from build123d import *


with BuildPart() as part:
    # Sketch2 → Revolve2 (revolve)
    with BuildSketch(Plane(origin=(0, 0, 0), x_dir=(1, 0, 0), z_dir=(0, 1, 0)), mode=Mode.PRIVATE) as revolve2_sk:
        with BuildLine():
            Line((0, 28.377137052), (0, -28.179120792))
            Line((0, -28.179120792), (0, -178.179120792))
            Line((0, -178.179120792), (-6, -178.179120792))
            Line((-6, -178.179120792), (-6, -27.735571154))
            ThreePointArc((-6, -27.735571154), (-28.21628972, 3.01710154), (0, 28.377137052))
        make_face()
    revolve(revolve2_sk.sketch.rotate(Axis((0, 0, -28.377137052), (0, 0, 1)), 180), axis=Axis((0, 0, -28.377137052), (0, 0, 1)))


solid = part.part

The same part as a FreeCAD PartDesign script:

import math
import FreeCAD as App
import Part
import Sketcher
Q = App.Units.Quantity

doc = App.newDocument("Part")
params = doc.addObject("Spreadsheet::Sheet", "Params")
for row, (alias, value) in enumerate([
    ("sketch1_width", "6 mm"),
    ("revolution_angle", "360 deg"),
], start=1):
    params.set(f"A{row}", alias)
    params.set(f"B{row}", "=" + value)
    params.setAlias(f"B{row}", alias)

body = doc.addObject("PartDesign::Body", "Body")

# Sketch on XZ plane
sketch1 = doc.addObject("Sketcher::SketchObject", "Sketch")
body.addObject(sketch1)
sketch1.AttachmentSupport = (doc.XZ_Plane, [""])
sketch1.MapMode = "FlatFace"
sketch1.addGeometry(Part.LineSegment(App.Vector(0, 178, 0), App.Vector(0, -28, 0)), False)
sketch1.addGeometry(Part.ArcOfCircle(Part.Circle(App.Vector(0, 0, 0), App.Vector(0, 0, 1), 28), math.radians(102), math.radians(270)), False)
sketch1.addGeometry(Part.LineSegment(App.Vector(-6, 28, 0), App.Vector(-6, 178, 0)), False)
sketch1.addGeometry(Part.LineSegment(App.Vector(-6, 178, 0), App.Vector(0, 178, 0)), False)
sketch1.addConstraint(Sketcher.Constraint("Coincident", 0, 2, 1, 2))
sketch1.addConstraint(Sketcher.Constraint("Coincident", 1, 1, 2, 1))
sketch1.addConstraint(Sketcher.Constraint("Coincident", 2, 2, 3, 1))
sketch1.addConstraint(Sketcher.Constraint("Coincident", 3, 2, 0, 1))
sketch1.addConstraint(Sketcher.Constraint("Vertical", 0))
sketch1.addConstraint(Sketcher.Constraint("Vertical", 2))
sketch1.addConstraint(Sketcher.Constraint("Horizontal", 3))
sketch1.addConstraint(Sketcher.Constraint("Coincident", 1, 3, -1, 1))
sketch1.addConstraint(Sketcher.Constraint("PointOnObject", 0, 2, -2))
sketch1.addConstraint(Sketcher.Constraint("DistanceX", 3, 1, 3, 2, Q("6 mm")))
sketch1.addConstraint(Sketcher.Constraint("Radius", 1, Q("28.377137 mm")))
sketch1.addConstraint(Sketcher.Constraint("DistanceY", 2, 1, 2, 2, Q("150.44355 mm")))
sketch1.setExpression("Constraints[9]", "Params.sketch1_width")
revolution = doc.addObject("PartDesign::Revolution", "Revolution")
body.addObject(revolution)
revolution.Profile = sketch1
revolution.ReferenceAxis = (sketch1, ["V_Axis"])
revolution.setExpression("Angle", "Params.revolution_angle")

doc.recompute()
